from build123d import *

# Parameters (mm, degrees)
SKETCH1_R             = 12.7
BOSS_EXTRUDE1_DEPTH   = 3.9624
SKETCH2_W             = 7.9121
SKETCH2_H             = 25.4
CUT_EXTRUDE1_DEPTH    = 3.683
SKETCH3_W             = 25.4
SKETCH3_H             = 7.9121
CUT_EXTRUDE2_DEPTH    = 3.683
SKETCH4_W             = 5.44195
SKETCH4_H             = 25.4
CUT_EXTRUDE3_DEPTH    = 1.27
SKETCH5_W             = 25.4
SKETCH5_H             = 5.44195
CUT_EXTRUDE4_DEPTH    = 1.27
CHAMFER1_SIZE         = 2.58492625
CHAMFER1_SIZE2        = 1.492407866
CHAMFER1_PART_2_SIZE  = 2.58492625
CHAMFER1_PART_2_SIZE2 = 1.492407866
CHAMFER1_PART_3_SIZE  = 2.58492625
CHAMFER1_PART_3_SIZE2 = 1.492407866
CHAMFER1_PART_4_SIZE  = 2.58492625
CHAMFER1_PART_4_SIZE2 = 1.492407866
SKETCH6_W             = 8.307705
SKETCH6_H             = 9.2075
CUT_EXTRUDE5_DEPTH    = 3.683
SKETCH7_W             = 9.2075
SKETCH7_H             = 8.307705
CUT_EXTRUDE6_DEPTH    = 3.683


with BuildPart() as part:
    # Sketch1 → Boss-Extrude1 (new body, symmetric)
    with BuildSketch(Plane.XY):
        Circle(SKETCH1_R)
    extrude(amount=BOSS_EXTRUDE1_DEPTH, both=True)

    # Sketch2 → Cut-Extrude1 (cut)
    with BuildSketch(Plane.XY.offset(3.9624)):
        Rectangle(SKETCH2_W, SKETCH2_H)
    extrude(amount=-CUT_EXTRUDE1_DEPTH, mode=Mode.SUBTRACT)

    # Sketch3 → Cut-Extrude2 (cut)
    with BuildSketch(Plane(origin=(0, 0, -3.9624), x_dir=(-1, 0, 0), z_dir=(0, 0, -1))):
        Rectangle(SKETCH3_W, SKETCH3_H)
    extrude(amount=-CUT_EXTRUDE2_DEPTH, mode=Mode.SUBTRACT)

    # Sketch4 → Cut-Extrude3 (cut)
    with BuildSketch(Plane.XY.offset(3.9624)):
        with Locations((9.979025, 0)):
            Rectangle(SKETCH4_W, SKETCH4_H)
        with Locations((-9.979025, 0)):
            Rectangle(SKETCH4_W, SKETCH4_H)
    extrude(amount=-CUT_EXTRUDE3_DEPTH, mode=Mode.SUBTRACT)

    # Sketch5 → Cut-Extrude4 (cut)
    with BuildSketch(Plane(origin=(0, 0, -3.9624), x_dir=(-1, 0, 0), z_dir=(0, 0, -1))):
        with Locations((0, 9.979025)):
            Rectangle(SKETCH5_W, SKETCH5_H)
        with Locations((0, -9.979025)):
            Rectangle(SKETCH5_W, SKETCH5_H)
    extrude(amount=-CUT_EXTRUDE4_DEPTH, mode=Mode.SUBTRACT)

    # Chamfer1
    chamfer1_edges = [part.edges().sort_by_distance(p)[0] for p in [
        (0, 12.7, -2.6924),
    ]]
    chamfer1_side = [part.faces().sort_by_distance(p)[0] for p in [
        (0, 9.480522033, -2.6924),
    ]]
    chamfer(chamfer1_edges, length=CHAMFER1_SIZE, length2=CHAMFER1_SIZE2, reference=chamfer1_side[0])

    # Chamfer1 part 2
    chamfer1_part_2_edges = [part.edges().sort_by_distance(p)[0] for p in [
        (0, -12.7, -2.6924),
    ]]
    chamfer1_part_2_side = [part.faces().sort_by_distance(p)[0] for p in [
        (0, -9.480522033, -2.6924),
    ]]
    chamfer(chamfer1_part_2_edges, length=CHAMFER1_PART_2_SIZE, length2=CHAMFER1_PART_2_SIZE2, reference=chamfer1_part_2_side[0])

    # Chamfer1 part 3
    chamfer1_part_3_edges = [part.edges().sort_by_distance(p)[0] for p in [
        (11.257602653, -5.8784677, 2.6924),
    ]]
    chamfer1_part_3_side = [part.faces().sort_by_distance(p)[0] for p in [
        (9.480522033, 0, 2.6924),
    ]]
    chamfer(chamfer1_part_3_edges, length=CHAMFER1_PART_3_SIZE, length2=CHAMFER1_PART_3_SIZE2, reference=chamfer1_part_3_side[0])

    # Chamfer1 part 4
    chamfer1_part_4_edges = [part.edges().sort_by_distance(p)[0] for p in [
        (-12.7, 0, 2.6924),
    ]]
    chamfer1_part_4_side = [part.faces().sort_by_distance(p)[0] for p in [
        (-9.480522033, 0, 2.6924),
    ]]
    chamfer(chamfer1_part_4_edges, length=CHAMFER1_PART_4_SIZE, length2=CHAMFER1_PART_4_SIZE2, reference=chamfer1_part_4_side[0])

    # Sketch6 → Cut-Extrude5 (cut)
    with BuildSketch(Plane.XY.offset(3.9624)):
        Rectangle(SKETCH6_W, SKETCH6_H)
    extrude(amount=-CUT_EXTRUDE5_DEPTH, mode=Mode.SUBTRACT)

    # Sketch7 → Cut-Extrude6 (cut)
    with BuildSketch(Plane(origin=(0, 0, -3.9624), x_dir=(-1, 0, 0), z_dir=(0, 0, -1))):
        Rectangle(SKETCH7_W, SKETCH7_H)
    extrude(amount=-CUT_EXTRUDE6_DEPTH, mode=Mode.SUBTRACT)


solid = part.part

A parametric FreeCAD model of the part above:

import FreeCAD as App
import Part
import Sketcher
from FreeCAD import Vector
Q = App.Units.Quantity


def edges_at(feature, points):
    """Names of the edges that pass closest to the given points."""
    edges = feature.Shape.Edges
    near = lambda p: min(range(len(edges)), key=lambda i: edges[i].distToShape(Part.Vertex(*p))[0])
    return sorted({f"Edge{near(p) + 1}" for p in points})

doc = App.newDocument("Part")
body = doc.addObject("PartDesign::Body", "Body")

sketch1 = body.newObject("Sketcher::SketchObject", "Sketch")
sketch1.AttachmentSupport = (doc.getObject("XY_Plane"), [""])
sketch1.MapMode = "FlatFace"
sketch1.addGeometry(Part.Circle(Vector(0, 0, 0), Vector(0, 0, 1), 13), False)
sketch1.addConstraint([
    Sketcher.Constraint("Coincident", 0, 3, -1, 1),
    Sketcher.Constraint("Diameter", 0, Q("1 in")),
])
pad1 = body.newObject("PartDesign::Pad", "Pad")
pad1.Profile = sketch1
pad1.Length = Q("0.312 in")
pad1.Midplane = True

sketch2 = body.newObject("Sketcher::SketchObject", "Sketch001")
sketch2.AttachmentSupport = (doc.getObject("XY_Plane"), [""])
sketch2.MapMode = "FlatFace"
sketch2.AttachmentOffset = App.Placement(Vector(0, 0, 0.156 * 25.4), App.Rotation())
sketch2.addGeometry([
    Part.LineSegment(Vector(-4, 13, 0), Vector(-4, -13, 0)),
    Part.LineSegment(Vector(-4, -13, 0), Vector(4, -13, 0)),
    Part.LineSegment(Vector(4, -13, 0), Vector(4, 13, 0)),
    Part.LineSegment(Vector(4, 13, 0), Vector(-4, 13, 0)),
], False)
sketch2.addConstraint([
    Sketcher.Constraint("Coincident", 0, 2, 1, 1),
    Sketcher.Constraint("Coincident", 1, 2, 2, 1),
    Sketcher.Constraint("Coincident", 2, 2, 3, 1),
    Sketcher.Constraint("Coincident", 3, 2, 0, 1),
    Sketcher.Constraint("Vertical", 0),
    Sketcher.Constraint("Horizontal", 1),
    Sketcher.Constraint("Vertical", 2),
    Sketcher.Constraint("Horizontal", 3),
    Sketcher.Constraint("Symmetric", 0, 2, 2, 2, -1, 1),
    Sketcher.Constraint("DistanceY", 0, 2, 0, 1, Q("1 in")),
    Sketcher.Constraint("DistanceX", 1, 1, 1, 2, Q("0.3115 in")),
])
pocket1 = body.newObject("PartDesign::Pocket", "Pocket")
pocket1.Profile = sketch2
pocket1.Length = Q("0.145 in")

sketch3 = body.newObject("Sketcher::SketchObject", "Sketch002")
sketch3.AttachmentSupport = (doc.getObject("XY_Plane"), [""])
sketch3.MapMode = "FlatFace"
sketch3.AttachmentOffset = App.Placement(Vector(0, 0, -0.156 * 25.4), App.Rotation())
sketch3.addGeometry([
    Part.LineSegment(Vector(13, 4, 0), Vector(13, -4, 0)),
    Part.LineSegment(Vector(13, -4, 0), Vector(-13, -4, 0)),
    Part.LineSegment(Vector(-13, -4, 0), Vector(-13, 4, 0)),
    Part.LineSegment(Vector(-13, 4, 0), Vector(13, 4, 0)),
], False)
sketch3.addConstraint([
    Sketcher.Constraint("Coincident", 0, 2, 1, 1),
    Sketcher.Constraint("Coincident", 1, 2, 2, 1),
    Sketcher.Constraint("Coincident", 2, 2, 3, 1),
    Sketcher.Constraint("Coincident", 3, 2, 0, 1),
    Sketcher.Constraint("Vertical", 0),
    Sketcher.Constraint("Horizontal", 1),
    Sketcher.Constraint("Vertical", 2),
    Sketcher.Constraint("Horizontal", 3),
    Sketcher.Constraint("Symmetric", 0, 2, 2, 2, -1, 1),
    Sketcher.Constraint("DistanceX", 1, 2, 1, 1, Q("1 in")),
    Sketcher.Constraint("DistanceY", 0, 2, 0, 1, Q("0.3115 in")),
])
pocket2 = body.newObject("PartDesign::Pocket", "Pocket001")
pocket2.Profile = sketch3
pocket2.Length = Q("0.145 in")
pocket2.Reversed = True

sketch4 = body.newObject("Sketcher::SketchObject", "Sketch003")
sketch4.AttachmentSupport = (doc.getObject("XY_Plane"), [""])
sketch4.MapMode = "FlatFace"
sketch4.AttachmentOffset = App.Placement(Vector(0, 0, 0.156 * 25.4), App.Rotation())
sketch4.addGeometry([
    Part.LineSegment(Vector(7, 13, 0), Vector(7, -13, 0)),
    Part.LineSegment(Vector(7, -13, 0), Vector(13, -13, 0)),
    Part.LineSegment(Vector(13, -13, 0), Vector(13, 13, 0)),
    Part.LineSegment(Vector(13, 13, 0), Vector(7, 13, 0)),
    Part.LineSegment(Vector(-13, 13, 0), Vector(-13, -13, 0)),
    Part.LineSegment(Vector(-13, -13, 0), Vector(-7, -13, 0)),
    Part.LineSegment(Vector(-7, -13, 0), Vector(-7, 13, 0)),
    Part.LineSegment(Vector(-7, 13, 0), Vector(-13, 13, 0)),
], False)
sketch4.addConstraint([
    Sketcher.Constraint("Coincident", 0, 2, 1, 1),
    Sketcher.Constraint("Coincident", 1, 2, 2, 1),
    Sketcher.Constraint("Coincident", 2, 2, 3, 1),
    Sketcher.Constraint("Coincident", 3, 2, 0, 1),
    Sketcher.Constraint("Coincident", 4, 2, 5, 1),
    Sketcher.Constraint("Coincident", 5, 2, 6, 1),
    Sketcher.Constraint("Coincident", 6, 2, 7, 1),
    Sketcher.Constraint("Coincident", 7, 2, 4, 1),
    Sketcher.Constraint("Vertical", 0),
    Sketcher.Constraint("Horizontal", 1),
    Sketcher.Constraint("Vertical", 2),
    Sketcher.Constraint("Horizontal", 3),
    Sketcher.Constraint("Vertical", 4),
    Sketcher.Constraint("Horizontal", 5),
    Sketcher.Constraint("Vertical", 6),
    Sketcher.Constraint("Horizontal", 7),
    Sketcher.Constraint("Symmetric", 2, 2, 4, 2, -1, 1),
    Sketcher.Constraint("Symmetric", 0, 2, 6, 2, -1, 1),
    Sketcher.Constraint("Horizontal", 1, 2, 4, 2),
    Sketcher.Constraint("DistanceY", 0, 2, 0, 1, Q("1 in")),
    Sketcher.Constraint("DistanceX", 4, 2, 1, 2, Q("1 in")),
    Sketcher.Constraint("DistanceX", 5, 2, 0, 2, Q("0.5715 in")),
])
pocket3 = body.newObject("PartDesign::Pocket", "Pocket002")
pocket3.Profile = sketch4
pocket3.Length = Q("0.05 in")

sketch5 = body.newObject("Sketcher::SketchObject", "Sketch004")
sketch5.AttachmentSupport = (doc.getObject("XY_Plane"), [""])
sketch5.MapMode = "FlatFace"
sketch5.AttachmentOffset = App.Placement(Vector(0, 0, -0.156 * 25.4), App.Rotation())
sketch5.addGeometry([
    Part.LineSegment(Vector(13, 13, 0), Vector(13, 7, 0)),
    Part.LineSegment(Vector(13, 7, 0), Vector(-13, 7, 0)),
    Part.LineSegment(Vector(-13, 7, 0), Vector(-13, 13, 0)),
    Part.LineSegment(Vector(-13, 13, 0), Vector(13, 13, 0)),
    Part.LineSegment(Vector(13, -7, 0), Vector(13, -13, 0)),
    Part.LineSegment(Vector(13, -13, 0), Vector(-13, -13, 0)),
    Part.LineSegment(Vector(-13, -13, 0), Vector(-13, -7, 0)),
    Part.LineSegment(Vector(-13, -7, 0), Vector(13, -7, 0)),
], False)
sketch5.addConstraint([
    Sketcher.Constraint("Coincident", 0, 2, 1, 1),
    Sketcher.Constraint("Coincident", 1, 2, 2, 1),
    Sketcher.Constraint("Coincident", 2, 2, 3, 1),
    Sketcher.Constraint("Coincident", 3, 2, 0, 1),
    Sketcher.Constraint("Coincident", 4, 2, 5, 1),
    Sketcher.Constraint("Coincident", 5, 2, 6, 1),
    Sketcher.Constraint("Coincident", 6, 2, 7, 1),
    Sketcher.Constraint("Coincident", 7, 2, 4, 1),
    Sketcher.Constraint("Vertical", 0),
    Sketcher.Constraint("Horizontal", 1),
    Sketcher.Constraint("Vertical", 2),
    Sketcher.Constraint("Horizontal", 3),
    Sketcher.Constraint("Vertical", 4),
    Sketcher.Constraint("Horizontal", 5),
    Sketcher.Constraint("Vertical", 6),
    Sketcher.Constraint("Horizontal", 7),
    Sketcher.Constraint("Symmetric", 2, 2, 4, 2, -1, 1),
    Sketcher.Constraint("Symmetric", 0, 2, 6, 2, -1, 1),
    Sketcher.Constraint("Vertical", 3, 2, 4, 2),
    Sketcher.Constraint("DistanceX", 1, 2, 1, 1, Q("1 in")),
    Sketcher.Constraint("DistanceY", 4, 2, 3, 2, Q("1 in")),
    Sketcher.Constraint("DistanceY", 6, 2, 1, 2, Q("0.5715 in")),
])
pocket4 = body.newObject("PartDesign::Pocket", "Pocket003")
pocket4.Profile = sketch5
pocket4.Length = Q("0.05 in")
pocket4.Reversed = True
doc.recompute()

chamfer = body.newObject("PartDesign::Chamfer", "Chamfer")
chamfer.Base = (pocket4, edges_at(pocket4, [(0, 12.7, -2.692)]))
chamfer.ChamferType = "Two distances"
chamfer.Size = 2.584926
chamfer.Size2 = 1.492408
chamfer.FlipDirection = True
doc.recompute()

chamfer2 = body.newObject("PartDesign::Chamfer", "Chamfer001")
chamfer2.Base = (chamfer, edges_at(chamfer, [(0, -12.7, -2.692)]))
chamfer2.ChamferType = "Two distances"
chamfer2.Size = 2.584926
chamfer2.Size2 = 1.492408
chamfer2.FlipDirection = True
doc.recompute()

chamfer3 = body.newObject("PartDesign::Chamfer", "Chamfer002")
chamfer3.Base = (chamfer2, edges_at(chamfer2, [(11.258, -5.878, 2.692)]))
chamfer3.ChamferType = "Two distances"
chamfer3.Size = 2.584926
chamfer3.Size2 = 1.492408
chamfer3.FlipDirection = True
doc.recompute()

chamfer4 = body.newObject("PartDesign::Chamfer", "Chamfer003")
chamfer4.Base = (chamfer3, edges_at(chamfer3, [(-12.7, 0, 2.692)]))
chamfer4.ChamferType = "Two distances"
chamfer4.Size = 2.584926
chamfer4.Size2 = 1.492408
chamfer4.FlipDirection = True

sketch6 = body.newObject("Sketcher::SketchObject", "Sketch005")
sketch6.AttachmentSupport = (doc.getObject("XY_Plane"), [""])
sketch6.MapMode = "FlatFace"
sketch6.AttachmentOffset = App.Placement(Vector(0, 0, 0.156 * 25.4), App.Rotation())
sketch6.addGeometry([
    Part.LineSegment(Vector(-4, 5, 0), Vector(-4, -5, 0)),
    Part.LineSegment(Vector(-4, -5, 0), Vector(4, -5, 0)),
    Part.LineSegment(Vector(4, -5, 0), Vector(4, 5, 0)),
    Part.LineSegment(Vector(4, 5, 0), Vector(-4, 5, 0)),
], False)
sketch6.addConstraint([
    Sketcher.Constraint("Coincident", 0, 2, 1, 1),
    Sketcher.Constraint("Coincident", 1, 2, 2, 1),
    Sketcher.Constraint("Coincident", 2, 2, 3, 1),
    Sketcher.Constraint("Coincident", 3, 2, 0, 1),
    Sketcher.Constraint("Vertical", 0),
    Sketcher.Constraint("Horizontal", 1),
    Sketcher.Constraint("Vertical", 2),
    Sketcher.Constraint("Horizontal", 3),
    Sketcher.Constraint("Symmetric", 0, 2, 2, 2, -1, 1),
    Sketcher.Constraint("DistanceY", 0, 2, 0, 1, Q("0.3625 in")),
    Sketcher.Constraint("DistanceX", 1, 1, 1, 2, Q("8.307705 mm")),
])
pocket5 = body.newObject("PartDesign::Pocket", "Pocket004")
pocket5.Profile = sketch6
pocket5.Length = Q("0.145 in")

sketch7 = body.newObject("Sketcher::SketchObject", "Sketch006")
sketch7.AttachmentSupport = (doc.getObject("XY_Plane"), [""])
sketch7.MapMode = "FlatFace"
sketch7.AttachmentOffset = App.Placement(Vector(0, 0, -0.156 * 25.4), App.Rotation())
sketch7.addGeometry([
    Part.LineSegment(Vector(5, 4, 0), Vector(5, -4, 0)),
    Part.LineSegment(Vector(5, -4, 0), Vector(-5, -4, 0)),
    Part.LineSegment(Vector(-5, -4, 0), Vector(-5, 4, 0)),
    Part.LineSegment(Vector(-5, 4, 0), Vector(5, 4, 0)),
], False)
sketch7.addConstraint([
    Sketcher.Constraint("Coincident", 0, 2, 1, 1),
    Sketcher.Constraint("Coincident", 1, 2, 2, 1),
    Sketcher.Constraint("Coincident", 2, 2, 3, 1),
    Sketcher.Constraint("Coincident", 3, 2, 0, 1),
    Sketcher.Constraint("Vertical", 0),
    Sketcher.Constraint("Horizontal", 1),
    Sketcher.Constraint("Vertical", 2),
    Sketcher.Constraint("Horizontal", 3),
    Sketcher.Constraint("Symmetric", 0, 2, 2, 2, -1, 1),
    Sketcher.Constraint("DistanceX", 1, 2, 1, 1, Q("0.3625 in")),
    Sketcher.Constraint("DistanceY", 0, 2, 0, 1, Q("8.307705 mm")),
])
pocket6 = body.newObject("PartDesign::Pocket", "Pocket005")
pocket6.Profile = sketch7
pocket6.Length = Q("0.145 in")
pocket6.Reversed = True

doc.recompute()
